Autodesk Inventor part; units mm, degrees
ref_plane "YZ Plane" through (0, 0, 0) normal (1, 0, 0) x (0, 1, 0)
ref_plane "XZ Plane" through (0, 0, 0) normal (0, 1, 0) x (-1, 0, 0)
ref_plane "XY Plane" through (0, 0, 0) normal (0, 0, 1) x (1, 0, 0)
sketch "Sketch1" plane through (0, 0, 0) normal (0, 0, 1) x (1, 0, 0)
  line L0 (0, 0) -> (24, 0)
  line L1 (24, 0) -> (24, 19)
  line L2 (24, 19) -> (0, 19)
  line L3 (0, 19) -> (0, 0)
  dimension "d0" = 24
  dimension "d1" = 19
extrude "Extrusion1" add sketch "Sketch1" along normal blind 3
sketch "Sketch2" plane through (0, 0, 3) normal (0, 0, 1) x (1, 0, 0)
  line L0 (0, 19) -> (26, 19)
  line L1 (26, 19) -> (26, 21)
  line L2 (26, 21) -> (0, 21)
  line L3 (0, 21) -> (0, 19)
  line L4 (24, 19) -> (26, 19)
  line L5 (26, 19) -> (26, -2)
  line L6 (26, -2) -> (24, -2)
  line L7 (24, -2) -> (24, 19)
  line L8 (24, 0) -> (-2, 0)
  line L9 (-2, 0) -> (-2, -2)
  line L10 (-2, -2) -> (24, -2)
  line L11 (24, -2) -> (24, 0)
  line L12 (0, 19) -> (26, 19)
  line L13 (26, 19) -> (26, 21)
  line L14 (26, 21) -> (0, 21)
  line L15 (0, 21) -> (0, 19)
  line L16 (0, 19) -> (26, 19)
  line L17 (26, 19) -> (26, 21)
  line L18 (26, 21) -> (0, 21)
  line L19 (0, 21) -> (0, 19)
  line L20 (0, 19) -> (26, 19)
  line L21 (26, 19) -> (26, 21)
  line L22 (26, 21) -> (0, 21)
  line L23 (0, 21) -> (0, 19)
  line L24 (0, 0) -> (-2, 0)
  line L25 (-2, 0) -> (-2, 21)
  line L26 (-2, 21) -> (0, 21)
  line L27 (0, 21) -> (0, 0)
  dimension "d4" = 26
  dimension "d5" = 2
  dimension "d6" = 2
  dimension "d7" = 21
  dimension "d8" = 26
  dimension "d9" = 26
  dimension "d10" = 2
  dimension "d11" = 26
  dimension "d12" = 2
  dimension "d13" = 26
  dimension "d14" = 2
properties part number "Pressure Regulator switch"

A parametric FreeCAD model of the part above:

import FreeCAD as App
import Part
import Sketcher
from FreeCAD import Vector
Q = App.Units.Quantity


def add_polygon(sketch, points):
    """Adds a closed chain of lines whose ends are joined by coincident constraints."""
    first, n = sketch.GeometryCount, len(points)
    for a, b in zip(points, points[1:] + points[:1]):
        sketch.addGeometry(Part.LineSegment(App.Vector(*a, 0), App.Vector(*b, 0)), False)
    for i in range(n):
        sketch.addConstraint(Sketcher.Constraint("Coincident", first + i, 2, first + (i + 1) % n, 1))

doc = App.newDocument("Part")
body = doc.addObject("PartDesign::Body", "Body")

# Sketch on XY plane
sketch1 = body.newObject("Sketcher::SketchObject", "Sketch")
sketch1.AttachmentSupport = (doc.getObject("XY_Plane"), [""])
sketch1.MapMode = "FlatFace"
add_polygon(sketch1, [(0, 19), (0, 0), (24, 0), (24, 19)])  # lines 0-3
sketch1.addConstraint(Sketcher.Constraint("Vertical", 0))
sketch1.addConstraint(Sketcher.Constraint("Horizontal", 1))
sketch1.addConstraint(Sketcher.Constraint("Vertical", 2))
sketch1.addConstraint(Sketcher.Constraint("Horizontal", 3))
sketch1.addConstraint(Sketcher.Constraint("Coincident", 0, 2, -1, 1))
sketch1.addConstraint(Sketcher.Constraint("DistanceX", 1, 1, 1, 2, Q("24 mm")))
sketch1.addConstraint(Sketcher.Constraint("DistanceY", 0, 2, 0, 1, Q("19 mm")))
pad1 = body.newObject("PartDesign::Pad", "Pad")
pad1.Profile = sketch1
pad1.Length = 3

doc.recompute()
